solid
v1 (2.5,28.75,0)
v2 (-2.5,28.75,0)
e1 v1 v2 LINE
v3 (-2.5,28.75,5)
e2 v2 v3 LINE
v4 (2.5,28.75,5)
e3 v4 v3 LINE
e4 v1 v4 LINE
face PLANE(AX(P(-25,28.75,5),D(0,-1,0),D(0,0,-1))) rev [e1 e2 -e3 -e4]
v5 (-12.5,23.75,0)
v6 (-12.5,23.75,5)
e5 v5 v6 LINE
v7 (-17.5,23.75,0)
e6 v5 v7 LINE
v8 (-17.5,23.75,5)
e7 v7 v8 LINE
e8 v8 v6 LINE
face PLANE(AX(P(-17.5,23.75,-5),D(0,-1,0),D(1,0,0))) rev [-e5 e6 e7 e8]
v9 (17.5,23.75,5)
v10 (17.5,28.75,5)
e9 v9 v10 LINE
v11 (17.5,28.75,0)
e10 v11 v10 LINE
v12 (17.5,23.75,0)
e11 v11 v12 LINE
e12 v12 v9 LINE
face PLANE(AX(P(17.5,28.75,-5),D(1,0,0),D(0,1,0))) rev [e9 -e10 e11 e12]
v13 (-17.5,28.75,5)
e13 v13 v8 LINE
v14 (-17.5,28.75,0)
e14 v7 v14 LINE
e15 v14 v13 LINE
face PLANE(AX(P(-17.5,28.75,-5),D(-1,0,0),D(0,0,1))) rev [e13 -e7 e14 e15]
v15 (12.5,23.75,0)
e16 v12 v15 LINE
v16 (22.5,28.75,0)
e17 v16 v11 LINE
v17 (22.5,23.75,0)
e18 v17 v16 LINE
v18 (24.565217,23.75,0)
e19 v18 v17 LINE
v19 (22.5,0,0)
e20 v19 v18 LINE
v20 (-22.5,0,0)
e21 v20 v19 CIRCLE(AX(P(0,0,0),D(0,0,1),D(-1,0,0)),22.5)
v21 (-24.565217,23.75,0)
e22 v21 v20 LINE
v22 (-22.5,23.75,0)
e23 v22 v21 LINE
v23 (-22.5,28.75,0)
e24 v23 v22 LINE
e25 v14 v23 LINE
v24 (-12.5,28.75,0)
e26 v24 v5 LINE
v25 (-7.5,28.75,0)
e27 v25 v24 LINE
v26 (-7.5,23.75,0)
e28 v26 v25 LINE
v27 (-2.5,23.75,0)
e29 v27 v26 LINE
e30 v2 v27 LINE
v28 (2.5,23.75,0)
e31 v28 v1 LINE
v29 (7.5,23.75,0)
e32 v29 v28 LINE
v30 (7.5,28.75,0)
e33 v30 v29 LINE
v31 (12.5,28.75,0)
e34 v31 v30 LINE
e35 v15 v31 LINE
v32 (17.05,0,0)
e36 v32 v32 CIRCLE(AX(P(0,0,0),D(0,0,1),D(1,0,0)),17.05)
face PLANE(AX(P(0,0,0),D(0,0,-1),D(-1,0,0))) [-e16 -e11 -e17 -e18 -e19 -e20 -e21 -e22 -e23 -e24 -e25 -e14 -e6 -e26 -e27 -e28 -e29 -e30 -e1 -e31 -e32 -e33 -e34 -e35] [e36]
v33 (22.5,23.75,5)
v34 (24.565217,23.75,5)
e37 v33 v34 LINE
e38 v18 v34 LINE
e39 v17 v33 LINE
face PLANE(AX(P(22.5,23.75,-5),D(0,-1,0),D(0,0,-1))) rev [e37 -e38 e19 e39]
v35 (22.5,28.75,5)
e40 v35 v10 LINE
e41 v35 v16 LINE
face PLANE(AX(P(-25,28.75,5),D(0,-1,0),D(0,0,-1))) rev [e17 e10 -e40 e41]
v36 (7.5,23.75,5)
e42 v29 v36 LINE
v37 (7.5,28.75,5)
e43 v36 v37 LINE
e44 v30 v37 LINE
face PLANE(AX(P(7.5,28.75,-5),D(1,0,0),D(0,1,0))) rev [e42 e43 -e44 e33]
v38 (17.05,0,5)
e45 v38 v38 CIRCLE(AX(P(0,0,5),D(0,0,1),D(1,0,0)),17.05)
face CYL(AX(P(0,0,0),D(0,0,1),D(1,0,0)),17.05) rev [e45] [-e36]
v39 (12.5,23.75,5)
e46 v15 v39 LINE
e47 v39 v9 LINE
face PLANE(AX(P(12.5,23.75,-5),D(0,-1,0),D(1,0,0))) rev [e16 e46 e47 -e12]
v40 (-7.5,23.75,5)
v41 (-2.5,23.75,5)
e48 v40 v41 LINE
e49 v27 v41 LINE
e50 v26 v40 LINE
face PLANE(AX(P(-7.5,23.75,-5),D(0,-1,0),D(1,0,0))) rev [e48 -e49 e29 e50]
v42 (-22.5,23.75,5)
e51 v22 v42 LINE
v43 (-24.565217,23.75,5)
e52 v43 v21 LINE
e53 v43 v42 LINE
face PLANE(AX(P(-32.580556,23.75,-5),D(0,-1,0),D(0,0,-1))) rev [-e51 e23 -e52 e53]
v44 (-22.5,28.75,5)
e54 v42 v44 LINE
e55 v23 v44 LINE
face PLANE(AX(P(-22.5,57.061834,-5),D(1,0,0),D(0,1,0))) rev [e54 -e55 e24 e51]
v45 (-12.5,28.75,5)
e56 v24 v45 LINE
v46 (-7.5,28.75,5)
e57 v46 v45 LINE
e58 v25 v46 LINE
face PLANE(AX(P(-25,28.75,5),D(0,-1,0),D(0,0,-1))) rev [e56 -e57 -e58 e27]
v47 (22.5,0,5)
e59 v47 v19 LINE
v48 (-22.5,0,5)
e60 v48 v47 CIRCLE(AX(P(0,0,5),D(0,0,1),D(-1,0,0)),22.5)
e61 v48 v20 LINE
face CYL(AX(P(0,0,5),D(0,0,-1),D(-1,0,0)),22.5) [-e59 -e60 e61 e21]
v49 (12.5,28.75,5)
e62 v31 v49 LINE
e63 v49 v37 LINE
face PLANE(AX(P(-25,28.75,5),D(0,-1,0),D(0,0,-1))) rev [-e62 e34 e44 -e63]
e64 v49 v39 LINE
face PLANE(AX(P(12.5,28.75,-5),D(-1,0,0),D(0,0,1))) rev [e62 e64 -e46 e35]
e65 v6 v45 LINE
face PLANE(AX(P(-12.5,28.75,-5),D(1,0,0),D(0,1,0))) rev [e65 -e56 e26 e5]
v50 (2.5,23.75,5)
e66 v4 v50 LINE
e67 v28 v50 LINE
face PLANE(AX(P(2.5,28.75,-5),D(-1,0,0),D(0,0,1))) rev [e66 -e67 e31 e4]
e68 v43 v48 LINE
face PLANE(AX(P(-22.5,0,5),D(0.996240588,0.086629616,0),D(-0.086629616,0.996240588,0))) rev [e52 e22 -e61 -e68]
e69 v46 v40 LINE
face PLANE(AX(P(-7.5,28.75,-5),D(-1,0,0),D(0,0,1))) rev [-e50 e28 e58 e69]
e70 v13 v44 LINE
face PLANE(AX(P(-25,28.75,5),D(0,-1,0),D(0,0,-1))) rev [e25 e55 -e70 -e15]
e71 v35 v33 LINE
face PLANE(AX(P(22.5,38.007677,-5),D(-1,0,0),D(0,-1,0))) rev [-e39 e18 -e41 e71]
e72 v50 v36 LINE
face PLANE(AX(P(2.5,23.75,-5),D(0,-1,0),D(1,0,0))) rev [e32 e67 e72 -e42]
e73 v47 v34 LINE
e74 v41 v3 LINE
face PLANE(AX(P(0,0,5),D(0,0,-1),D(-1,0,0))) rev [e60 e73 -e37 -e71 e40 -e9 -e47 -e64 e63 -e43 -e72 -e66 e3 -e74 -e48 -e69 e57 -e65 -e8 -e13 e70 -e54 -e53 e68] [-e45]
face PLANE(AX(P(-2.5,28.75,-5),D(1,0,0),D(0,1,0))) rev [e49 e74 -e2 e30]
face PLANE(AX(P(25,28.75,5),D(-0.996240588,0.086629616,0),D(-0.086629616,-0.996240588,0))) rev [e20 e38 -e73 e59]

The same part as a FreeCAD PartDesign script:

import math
import FreeCAD as App
import Part
import Sketcher

V = App.Vector


def add_polygon(sketch, points):
    """Adds a closed chain of lines whose ends are joined by coincident constraints."""
    first, n = sketch.GeometryCount, len(points)
    for a, b in zip(points, points[1:] + points[:1]):
        sketch.addGeometry(Part.LineSegment(App.Vector(*a, 0), App.Vector(*b, 0)), False)
    for i in range(n):
        sketch.addConstraint(Sketcher.Constraint("Coincident", first + i, 2, first + (i + 1) % n, 1))

doc = App.newDocument("Part")
body = doc.addObject("PartDesign::Body", "Body")

# Sketch on XY plane
sketch1 = body.newObject("Sketcher::SketchObject", "Sketch")
sketch1.AttachmentSupport = (doc.getObject("XY_Plane"), [""])
sketch1.MapMode = "FlatFace"
sketch1.addGeometry(Part.LineSegment(V(-25, 29, 0), V(-22, 0, 0)), False)
sketch1.addGeometry(Part.ArcOfCircle(Part.Circle(V(0, 0, 0), V(0, 0, 1), 22), math.radians(180), math.radians(360)), False)
sketch1.addGeometry(Part.LineSegment(V(22, 0, 0), V(25, 29, 0)), False)
sketch1.addGeometry(Part.LineSegment(V(25, 29, 0), V(-25, 29, 0)), False)
sketch1.addConstraint(Sketcher.Constraint("Coincident", 0, 2, 1, 1))
sketch1.addConstraint(Sketcher.Constraint("Coincident", 1, 2, 2, 1))
sketch1.addConstraint(Sketcher.Constraint("Coincident", 2, 2, 3, 1))
sketch1.addConstraint(Sketcher.Constraint("Coincident", 3, 2, 0, 1))
sketch1.addConstraint(Sketcher.Constraint("Horizontal", 3))
sketch1.addConstraint(Sketcher.Constraint("Coincident", 1, 3, -1, 1))
sketch1.addConstraint(Sketcher.Constraint("PointOnObject", 0, 2, -1))
sketch1.addConstraint(Sketcher.Constraint("PointOnObject", 1, 2, -1))
sketch1.addConstraint(Sketcher.Constraint("Equal", 0, 2))
sketch1.addConstraint(Sketcher.Constraint("Radius", 1, 22.5))
sketch1.addConstraint(Sketcher.Constraint("DistanceX", 3, 2, 3, 1, 50.0))
sketch1.addConstraint(Sketcher.Constraint("DistanceY", -1, 1, 2, 2, 28.75))
pad1 = body.newObject("PartDesign::Pad", "Pad")
pad1.Profile = sketch1
pad1.Length = 5

# Sketch on XY plane
sketch2 = body.newObject("Sketcher::SketchObject", "Sketch001")
sketch2.AttachmentSupport = (doc.getObject("XY_Plane"), [""])
sketch2.MapMode = "FlatFace"
sketch2.AttachmentOffset = App.Placement(V(0, 0, 5), App.Rotation())
sketch2.addGeometry(Part.Circle(V(0, 0, 0), V(0, 0, 1), 17), False)
sketch2.addConstraint(Sketcher.Constraint("Coincident", 0, 3, -1, 1))
sketch2.addConstraint(Sketcher.Constraint("Diameter", 0, 34.1))
pocket1 = body.newObject("PartDesign::Pocket", "Pocket")
pocket1.Profile = sketch2
pocket1.Length = 5

# Sketch on XY plane
sketch3 = body.newObject("Sketcher::SketchObject", "Sketch002")
sketch3.AttachmentSupport = (doc.getObject("XY_Plane"), [""])
sketch3.MapMode = "FlatFace"
sketch3.AttachmentOffset = App.Placement(V(0, 0, 5), App.Rotation())
add_polygon(sketch3, [(-18, 29), (-18, 24), (-12, 24), (-12, 29)])  # lines 0-3
sketch3.addConstraint(Sketcher.Constraint("Vertical", 0))
sketch3.addConstraint(Sketcher.Constraint("Horizontal", 1))
sketch3.addConstraint(Sketcher.Constraint("Vertical", 2))
sketch3.addConstraint(Sketcher.Constraint("Horizontal", 3))
sketch3.addConstraint(Sketcher.Constraint("Equal", 3, 0))
sketch3.addConstraint(Sketcher.Constraint("DistanceX", 1, 1, 1, 2, 5.0))
sketch3.addConstraint(Sketcher.Constraint("DistanceX", 0, 2, -1, 1, 17.5))
sketch3.addConstraint(Sketcher.Constraint("DistanceY", -1, 1, 0, 2, 23.75))
pocket2 = body.newObject("PartDesign::Pocket", "Pocket001")
pocket2.Profile = sketch3
pocket2.Length = 10
doc.recompute()

linearpattern = body.newObject("PartDesign::LinearPattern", "LinearPattern")
linearpattern.Originals = [pocket2]
linearpattern.Direction = (doc.getObject("X_Axis"), [""])
linearpattern.Mode = "offset"
linearpattern.Offset = 10
linearpattern.Occurrences = 4
body.Tip = linearpattern

# Sketch on XY plane
sketch4 = body.newObject("Sketcher::SketchObject", "Sketch003")
sketch4.AttachmentSupport = (doc.getObject("XY_Plane"), [""])
sketch4.MapMode = "FlatFace"
sketch4.AttachmentOffset = App.Placement(V(0, 0, 5), App.Rotation())
add_polygon(sketch4, [(22, 38), (22, 24), (36, 24), (36, 38)])  # lines 0-3
add_polygon(sketch4, [(-33, 57), (-33, 24), (-23, 24), (-23, 57)])  # lines 4-7
sketch4.addConstraint(Sketcher.Constraint("Vertical", 0))
sketch4.addConstraint(Sketcher.Constraint("Horizontal", 1))
sketch4.addConstraint(Sketcher.Constraint("Vertical", 2))
sketch4.addConstraint(Sketcher.Constraint("Horizontal", 3))
sketch4.addConstraint(Sketcher.Constraint("Vertical", 4))
sketch4.addConstraint(Sketcher.Constraint("Horizontal", 5))
sketch4.addConstraint(Sketcher.Constraint("Vertical", 6))
sketch4.addConstraint(Sketcher.Constraint("Horizontal", 7))
sketch4.addConstraint(Sketcher.Constraint("Symmetric", 0, 2, 5, 2, -2))
sketch4.addConstraint(Sketcher.Constraint("DistanceX", 5, 2, 0, 2, 45.0))
sketch4.addConstraint(Sketcher.Constraint("DistanceY", -1, 1, 0, 2, 23.75))
sketch4.addConstraint(Sketcher.Constraint("DistanceX", 1, 1, 1, 2, 13.329947))
sketch4.addConstraint(Sketcher.Constraint("DistanceX", 5, 1, 5, 2, 10.080556))
sketch4.addConstraint(Sketcher.Constraint("DistanceY", 0, 2, 0, 1, 14.257677))
sketch4.addConstraint(Sketcher.Constraint("DistanceY", 4, 2, 4, 1, 33.311834))
pocket3 = body.newObject("PartDesign::Pocket", "Pocket002")
pocket3.Profile = sketch4
pocket3.Length = 10

doc.recompute()
